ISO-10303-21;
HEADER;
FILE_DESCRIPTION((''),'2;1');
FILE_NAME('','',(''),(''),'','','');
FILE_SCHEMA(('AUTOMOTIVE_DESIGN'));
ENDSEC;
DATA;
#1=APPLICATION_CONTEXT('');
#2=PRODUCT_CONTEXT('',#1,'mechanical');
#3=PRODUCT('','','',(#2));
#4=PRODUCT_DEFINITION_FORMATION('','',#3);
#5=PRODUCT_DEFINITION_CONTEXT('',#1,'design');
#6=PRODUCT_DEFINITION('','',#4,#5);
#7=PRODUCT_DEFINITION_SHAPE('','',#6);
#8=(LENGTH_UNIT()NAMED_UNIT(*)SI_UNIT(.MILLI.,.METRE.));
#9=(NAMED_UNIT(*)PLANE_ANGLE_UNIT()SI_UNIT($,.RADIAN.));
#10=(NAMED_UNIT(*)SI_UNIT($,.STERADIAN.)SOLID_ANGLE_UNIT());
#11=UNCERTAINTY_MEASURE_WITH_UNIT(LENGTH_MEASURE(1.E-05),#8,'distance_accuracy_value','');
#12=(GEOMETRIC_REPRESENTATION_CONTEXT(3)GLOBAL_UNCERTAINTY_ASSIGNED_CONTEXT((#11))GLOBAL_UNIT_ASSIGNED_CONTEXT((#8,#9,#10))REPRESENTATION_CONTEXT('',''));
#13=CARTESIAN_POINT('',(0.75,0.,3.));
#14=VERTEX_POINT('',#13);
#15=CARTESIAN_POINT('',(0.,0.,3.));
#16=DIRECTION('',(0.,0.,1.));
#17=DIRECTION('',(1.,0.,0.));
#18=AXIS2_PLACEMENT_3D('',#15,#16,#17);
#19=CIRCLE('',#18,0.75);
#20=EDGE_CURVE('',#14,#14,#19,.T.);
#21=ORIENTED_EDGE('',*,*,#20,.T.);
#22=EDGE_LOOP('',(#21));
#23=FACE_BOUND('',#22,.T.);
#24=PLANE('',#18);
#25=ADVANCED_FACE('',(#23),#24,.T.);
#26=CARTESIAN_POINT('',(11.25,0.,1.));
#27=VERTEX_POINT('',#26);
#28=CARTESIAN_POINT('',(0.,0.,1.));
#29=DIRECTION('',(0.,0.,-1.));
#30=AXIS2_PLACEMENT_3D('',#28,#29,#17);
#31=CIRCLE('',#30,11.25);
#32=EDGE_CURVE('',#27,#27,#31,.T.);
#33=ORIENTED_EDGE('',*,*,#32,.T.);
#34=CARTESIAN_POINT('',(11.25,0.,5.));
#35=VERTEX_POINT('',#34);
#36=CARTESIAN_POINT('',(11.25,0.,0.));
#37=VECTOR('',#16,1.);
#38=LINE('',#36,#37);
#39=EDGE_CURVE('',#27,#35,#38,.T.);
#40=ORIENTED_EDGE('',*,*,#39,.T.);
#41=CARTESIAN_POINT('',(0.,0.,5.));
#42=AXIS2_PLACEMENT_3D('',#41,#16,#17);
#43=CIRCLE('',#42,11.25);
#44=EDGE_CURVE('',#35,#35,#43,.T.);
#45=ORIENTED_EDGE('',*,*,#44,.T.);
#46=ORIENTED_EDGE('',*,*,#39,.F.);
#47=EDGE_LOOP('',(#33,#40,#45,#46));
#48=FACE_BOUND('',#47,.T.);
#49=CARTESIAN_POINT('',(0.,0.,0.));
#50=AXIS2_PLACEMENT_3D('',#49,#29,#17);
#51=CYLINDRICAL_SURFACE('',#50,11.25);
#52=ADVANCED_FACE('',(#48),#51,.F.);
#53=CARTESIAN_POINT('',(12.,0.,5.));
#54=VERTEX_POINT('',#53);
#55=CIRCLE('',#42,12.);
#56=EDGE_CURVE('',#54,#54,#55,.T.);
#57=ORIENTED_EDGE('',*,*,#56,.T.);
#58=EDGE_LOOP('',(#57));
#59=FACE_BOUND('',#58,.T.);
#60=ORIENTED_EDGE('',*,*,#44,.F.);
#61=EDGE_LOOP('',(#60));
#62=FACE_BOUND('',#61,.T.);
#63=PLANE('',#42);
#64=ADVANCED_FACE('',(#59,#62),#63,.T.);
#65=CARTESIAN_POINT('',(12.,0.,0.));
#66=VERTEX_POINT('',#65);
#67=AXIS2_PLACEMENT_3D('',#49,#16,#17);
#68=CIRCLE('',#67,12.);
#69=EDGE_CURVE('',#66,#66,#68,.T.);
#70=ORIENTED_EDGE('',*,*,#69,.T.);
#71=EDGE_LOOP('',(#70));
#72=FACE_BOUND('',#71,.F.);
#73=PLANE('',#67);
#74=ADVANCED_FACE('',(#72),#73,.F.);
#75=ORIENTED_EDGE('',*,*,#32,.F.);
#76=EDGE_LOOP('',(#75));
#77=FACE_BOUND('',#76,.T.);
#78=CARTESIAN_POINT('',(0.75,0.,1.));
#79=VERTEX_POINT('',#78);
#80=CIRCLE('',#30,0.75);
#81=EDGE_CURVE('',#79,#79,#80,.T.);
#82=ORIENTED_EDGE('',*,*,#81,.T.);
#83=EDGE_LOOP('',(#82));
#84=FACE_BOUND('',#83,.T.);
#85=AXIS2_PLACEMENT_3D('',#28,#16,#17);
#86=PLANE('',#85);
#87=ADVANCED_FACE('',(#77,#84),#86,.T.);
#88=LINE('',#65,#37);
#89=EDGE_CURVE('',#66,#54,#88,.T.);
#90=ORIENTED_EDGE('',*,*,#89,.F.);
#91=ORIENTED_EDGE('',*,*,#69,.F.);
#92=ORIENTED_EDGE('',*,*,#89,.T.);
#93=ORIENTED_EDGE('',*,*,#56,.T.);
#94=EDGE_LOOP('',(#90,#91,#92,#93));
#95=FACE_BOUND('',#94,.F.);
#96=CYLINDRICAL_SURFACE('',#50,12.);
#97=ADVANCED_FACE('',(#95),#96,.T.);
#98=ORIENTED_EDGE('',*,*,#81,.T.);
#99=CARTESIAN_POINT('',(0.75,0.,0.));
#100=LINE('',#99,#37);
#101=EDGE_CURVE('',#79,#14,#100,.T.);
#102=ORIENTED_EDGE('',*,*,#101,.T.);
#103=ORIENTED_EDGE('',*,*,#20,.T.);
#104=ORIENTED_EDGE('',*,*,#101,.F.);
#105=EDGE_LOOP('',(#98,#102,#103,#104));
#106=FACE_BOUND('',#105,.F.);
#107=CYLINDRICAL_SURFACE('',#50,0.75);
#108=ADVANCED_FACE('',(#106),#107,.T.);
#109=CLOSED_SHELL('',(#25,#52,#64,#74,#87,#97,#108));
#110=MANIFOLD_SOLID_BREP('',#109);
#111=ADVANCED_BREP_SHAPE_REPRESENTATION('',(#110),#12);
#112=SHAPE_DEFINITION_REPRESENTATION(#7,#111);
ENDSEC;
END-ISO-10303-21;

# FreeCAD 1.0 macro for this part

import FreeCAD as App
import Part
import Sketcher
Q = App.Units.Quantity

doc = App.newDocument("Part")
body = doc.addObject("PartDesign::Body", "Body")

sketch1 = body.newObject("Sketcher::SketchObject", "Sketch")
sketch1.AttachmentSupport = (doc.getObject("XY_Plane"), [""])
sketch1.MapMode = "FlatFace"
sketch1.addGeometry(Part.Circle(App.Vector(0, 0, 0), App.Vector(0, 0, 1), 11.75), False)
sketch1.addConstraint([
    Sketcher.Constraint("Coincident", 0, 3, -1, 1),
    Sketcher.Constraint("Diameter", 0, Q("23.5 mm")),
])
pad1 = body.newObject("PartDesign::Pad", "Pad")
pad1.Profile = sketch1
pad1.Length = 1

sketch2 = body.newObject("Sketcher::SketchObject", "Sketch001")
sketch2.AttachmentSupport = (doc.getObject("XY_Plane"), [""])
sketch2.MapMode = "FlatFace"
sketch2.addGeometry([
    Part.Circle(App.Vector(0, 0, 0), App.Vector(0, 0, 1), 12),
    Part.Circle(App.Vector(0, 0, 0), App.Vector(0, 0, 1), 11.25),
], False)
sketch2.addConstraint([
    Sketcher.Constraint("Coincident", 0, 3, -1, 1),
    Sketcher.Constraint("Coincident", 1, 3, -1, 1),
    Sketcher.Constraint("Diameter", 0, Q("24 mm")),
    Sketcher.Constraint("Diameter", 1, Q("22.5 mm")),
])
pad2 = body.newObject("PartDesign::Pad", "Pad001")
pad2.Profile = sketch2
pad2.Length = 5

sketch3 = body.newObject("Sketcher::SketchObject", "Sketch002")
sketch3.AttachmentSupport = (doc.getObject("XY_Plane"), [""])
sketch3.MapMode = "FlatFace"
sketch3.addGeometry(Part.Circle(App.Vector(0, 0, 0), App.Vector(0, 0, 1), 0.75), False)
sketch3.addConstraint([
    Sketcher.Constraint("Coincident", 0, 3, -1, 1),
    Sketcher.Constraint("Diameter", 0, Q("1.5 mm")),
])
pad3 = body.newObject("PartDesign::Pad", "Pad002")
pad3.Profile = sketch3
pad3.Length = 3

doc.recompute()
